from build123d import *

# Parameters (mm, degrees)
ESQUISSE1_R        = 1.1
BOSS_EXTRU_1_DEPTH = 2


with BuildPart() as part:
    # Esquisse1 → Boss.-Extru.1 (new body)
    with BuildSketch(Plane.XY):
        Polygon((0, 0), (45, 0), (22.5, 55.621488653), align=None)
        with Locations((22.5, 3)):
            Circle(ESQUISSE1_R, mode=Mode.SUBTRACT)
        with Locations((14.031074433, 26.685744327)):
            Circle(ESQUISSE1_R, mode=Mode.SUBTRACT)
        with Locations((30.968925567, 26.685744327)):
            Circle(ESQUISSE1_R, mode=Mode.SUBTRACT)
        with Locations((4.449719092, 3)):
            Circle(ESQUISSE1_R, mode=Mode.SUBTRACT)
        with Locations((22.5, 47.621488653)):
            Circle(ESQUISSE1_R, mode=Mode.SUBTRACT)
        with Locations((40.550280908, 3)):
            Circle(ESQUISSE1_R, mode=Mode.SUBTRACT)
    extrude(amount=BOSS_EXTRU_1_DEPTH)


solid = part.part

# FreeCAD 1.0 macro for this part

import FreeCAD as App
import Part
import Sketcher

V = App.Vector
Q = App.Units.Quantity


def add_polygon(sketch, points):
    """Adds a closed chain of lines whose ends are joined by coincident constraints."""
    first, n = sketch.GeometryCount, len(points)
    for a, b in zip(points, points[1:] + points[:1]):
        sketch.addGeometry(Part.LineSegment(App.Vector(*a, 0), App.Vector(*b, 0)), False)
    for i in range(n):
        sketch.addConstraint(Sketcher.Constraint("Coincident", first + i, 2, first + (i + 1) % n, 1))

doc = App.newDocument("Part")
body = doc.addObject("PartDesign::Body", "Body")

sketch1 = body.newObject("Sketcher::SketchObject", "Sketch")
sketch1.AttachmentSupport = (doc.getObject("XY_Plane"), [""])
sketch1.MapMode = "FlatFace"
add_polygon(sketch1, [(0, 0), (45, 0), (22.5, 55.621489)])
sketch1.addGeometry(Part.Circle(V(4.449719, 3, 0), V(0, 0, 1), 1.1), False)
sketch1.addGeometry(Part.Circle(V(22.5, 3, 0), V(0, 0, 1), 1.1), False)
sketch1.addGeometry(Part.Circle(V(40.550281, 3, 0), V(0, 0, 1), 1.1), False)
sketch1.addGeometry(Part.Circle(V(14.031074, 26.685744, 0), V(0, 0, 1), 1.1), False)
sketch1.addGeometry(Part.Circle(V(30.968926, 26.685744, 0), V(0, 0, 1), 1.1), False)
sketch1.addGeometry(Part.Circle(V(22.5, 47.621489, 0), V(0, 0, 1), 1.1), False)
sketch1.addConstraint([
    Sketcher.Constraint("Horizontal", 0),
    Sketcher.Constraint("Coincident", 2, 2, -1, 1),
    Sketcher.Constraint("Equal", 3, 4),
    Sketcher.Constraint("Equal", 4, 5),
    Sketcher.Constraint("Equal", 5, 6),
    Sketcher.Constraint("Equal", 6, 7),
    Sketcher.Constraint("Equal", 7, 8),
    Sketcher.Constraint("Horizontal", 3, 3, 4, 3),
    Sketcher.Constraint("Horizontal", 4, 3, 5, 3),
    Sketcher.Constraint("Horizontal", 6, 3, 7, 3),
    Sketcher.Constraint("Vertical", 4, 3, 8, 3),
    Sketcher.Constraint("Vertical", 8, 3, 1, 2),
    Sketcher.Constraint("Equal", 1, 2),
    Sketcher.Constraint("Diameter", 3, Q("2.2 mm")),
    Sketcher.Constraint("DistanceX", 0, 1, 0, 2, Q("45 mm")),
    Sketcher.Constraint("Distance", 1, Q("60 mm")),
    Sketcher.Constraint("DistanceY", -1, 1, 3, 3, Q("3 mm")),
    Sketcher.Constraint("DistanceY", 8, 3, 1, 2, Q("8 mm")),
    Sketcher.Constraint("DistanceX", -1, 1, 3, 3, Q("4.449719 mm")),
    Sketcher.Constraint("DistanceX", -1, 1, 5, 3, Q("40.550281 mm")),
    Sketcher.Constraint("DistanceX", 6, 3, 7, 3, Q("16.937851 mm")),
    Sketcher.Constraint("DistanceX", -1, 1, 6, 3, Q("14.031074 mm")),
    Sketcher.Constraint("DistanceY", -1, 1, 6, 3, Q("26.685744 mm")),
])
pad1 = body.newObject("PartDesign::Pad", "Pad")
pad1.Profile = sketch1
pad1.Length = 2

doc.recompute()
